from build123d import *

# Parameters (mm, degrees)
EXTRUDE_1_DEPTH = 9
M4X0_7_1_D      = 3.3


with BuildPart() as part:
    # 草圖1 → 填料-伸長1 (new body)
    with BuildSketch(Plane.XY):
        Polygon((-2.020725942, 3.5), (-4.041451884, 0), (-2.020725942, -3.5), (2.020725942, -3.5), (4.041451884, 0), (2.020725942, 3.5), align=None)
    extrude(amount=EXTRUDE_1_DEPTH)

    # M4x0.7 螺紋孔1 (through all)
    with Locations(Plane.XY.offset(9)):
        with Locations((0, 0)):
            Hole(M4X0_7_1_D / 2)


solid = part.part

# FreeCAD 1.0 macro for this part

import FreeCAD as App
import Part
import Sketcher
from FreeCAD import Vector
Q = App.Units.Quantity


def add_polygon(sketch, points):
    """Adds a closed chain of lines whose ends are joined by coincident constraints."""
    first, n = sketch.GeometryCount, len(points)
    for a, b in zip(points, points[1:] + points[:1]):
        sketch.addGeometry(Part.LineSegment(App.Vector(*a, 0), App.Vector(*b, 0)), False)
    for i in range(n):
        sketch.addConstraint(Sketcher.Constraint("Coincident", first + i, 2, first + (i + 1) % n, 1))

doc = App.newDocument("Part")
body = doc.addObject("PartDesign::Body", "Body")

# Sketch on XY plane
sketch1 = body.newObject("Sketcher::SketchObject", "Sketch")
sketch1.AttachmentSupport = (doc.getObject("XY_Plane"), [""])
sketch1.MapMode = "FlatFace"
add_polygon(sketch1, [(-2, 3.5), (-4, 0), (-2, -3.5), (2, -3.5), (4, 0), (2, 3.5)])  # lines 0-5
sketch1.addConstraint([
    Sketcher.Constraint("Horizontal", 2),
    Sketcher.Constraint("Horizontal", 5),
    Sketcher.Constraint("Symmetric", 0, 2, 3, 2, -1, 1),
    Sketcher.Constraint("Symmetric", 1, 2, 4, 2, -1, 1),
    Sketcher.Constraint("PointOnObject", 0, 2, -1),
    Sketcher.Constraint("Parallel", 0, 3),
    Sketcher.Constraint("Vertical", 2, 2, 4, 2),
    Sketcher.Constraint("Angle", 0, Q("-120 deg")),
    Sketcher.Constraint("DistanceY", 2, 2, 4, 2, Q("7 mm")),
    Sketcher.Constraint("DistanceX", 2, 1, 2, 2, Q("4.041452 mm")),
])
pad1 = body.newObject("PartDesign::Pad", "Pad")
pad1.Profile = sketch1
pad1.Length = 9

# Sketch on XY plane
sketch2 = body.newObject("Sketcher::SketchObject", "Sketch001")
sketch2.AttachmentSupport = (doc.getObject("XY_Plane"), [""])
sketch2.MapMode = "FlatFace"
sketch2.AttachmentOffset = App.Placement(Vector(0, 0, 9), App.Rotation())
sketch2.addGeometry(Part.Circle(Vector(0, 0, 0), Vector(0, 0, 1), 1.6), False)
sketch2.addConstraint([
    Sketcher.Constraint("Coincident", 0, 3, -1, 1),
    Sketcher.Constraint("Diameter", 0, Q("3.3 mm")),
])
doc.recompute()
hole = body.newObject("PartDesign::Hole", "Hole")
hole.Profile = sketch2
hole.ThreadType = "None"
hole.Diameter = 3.3
hole.DepthType = "ThroughAll"

doc.recompute()
